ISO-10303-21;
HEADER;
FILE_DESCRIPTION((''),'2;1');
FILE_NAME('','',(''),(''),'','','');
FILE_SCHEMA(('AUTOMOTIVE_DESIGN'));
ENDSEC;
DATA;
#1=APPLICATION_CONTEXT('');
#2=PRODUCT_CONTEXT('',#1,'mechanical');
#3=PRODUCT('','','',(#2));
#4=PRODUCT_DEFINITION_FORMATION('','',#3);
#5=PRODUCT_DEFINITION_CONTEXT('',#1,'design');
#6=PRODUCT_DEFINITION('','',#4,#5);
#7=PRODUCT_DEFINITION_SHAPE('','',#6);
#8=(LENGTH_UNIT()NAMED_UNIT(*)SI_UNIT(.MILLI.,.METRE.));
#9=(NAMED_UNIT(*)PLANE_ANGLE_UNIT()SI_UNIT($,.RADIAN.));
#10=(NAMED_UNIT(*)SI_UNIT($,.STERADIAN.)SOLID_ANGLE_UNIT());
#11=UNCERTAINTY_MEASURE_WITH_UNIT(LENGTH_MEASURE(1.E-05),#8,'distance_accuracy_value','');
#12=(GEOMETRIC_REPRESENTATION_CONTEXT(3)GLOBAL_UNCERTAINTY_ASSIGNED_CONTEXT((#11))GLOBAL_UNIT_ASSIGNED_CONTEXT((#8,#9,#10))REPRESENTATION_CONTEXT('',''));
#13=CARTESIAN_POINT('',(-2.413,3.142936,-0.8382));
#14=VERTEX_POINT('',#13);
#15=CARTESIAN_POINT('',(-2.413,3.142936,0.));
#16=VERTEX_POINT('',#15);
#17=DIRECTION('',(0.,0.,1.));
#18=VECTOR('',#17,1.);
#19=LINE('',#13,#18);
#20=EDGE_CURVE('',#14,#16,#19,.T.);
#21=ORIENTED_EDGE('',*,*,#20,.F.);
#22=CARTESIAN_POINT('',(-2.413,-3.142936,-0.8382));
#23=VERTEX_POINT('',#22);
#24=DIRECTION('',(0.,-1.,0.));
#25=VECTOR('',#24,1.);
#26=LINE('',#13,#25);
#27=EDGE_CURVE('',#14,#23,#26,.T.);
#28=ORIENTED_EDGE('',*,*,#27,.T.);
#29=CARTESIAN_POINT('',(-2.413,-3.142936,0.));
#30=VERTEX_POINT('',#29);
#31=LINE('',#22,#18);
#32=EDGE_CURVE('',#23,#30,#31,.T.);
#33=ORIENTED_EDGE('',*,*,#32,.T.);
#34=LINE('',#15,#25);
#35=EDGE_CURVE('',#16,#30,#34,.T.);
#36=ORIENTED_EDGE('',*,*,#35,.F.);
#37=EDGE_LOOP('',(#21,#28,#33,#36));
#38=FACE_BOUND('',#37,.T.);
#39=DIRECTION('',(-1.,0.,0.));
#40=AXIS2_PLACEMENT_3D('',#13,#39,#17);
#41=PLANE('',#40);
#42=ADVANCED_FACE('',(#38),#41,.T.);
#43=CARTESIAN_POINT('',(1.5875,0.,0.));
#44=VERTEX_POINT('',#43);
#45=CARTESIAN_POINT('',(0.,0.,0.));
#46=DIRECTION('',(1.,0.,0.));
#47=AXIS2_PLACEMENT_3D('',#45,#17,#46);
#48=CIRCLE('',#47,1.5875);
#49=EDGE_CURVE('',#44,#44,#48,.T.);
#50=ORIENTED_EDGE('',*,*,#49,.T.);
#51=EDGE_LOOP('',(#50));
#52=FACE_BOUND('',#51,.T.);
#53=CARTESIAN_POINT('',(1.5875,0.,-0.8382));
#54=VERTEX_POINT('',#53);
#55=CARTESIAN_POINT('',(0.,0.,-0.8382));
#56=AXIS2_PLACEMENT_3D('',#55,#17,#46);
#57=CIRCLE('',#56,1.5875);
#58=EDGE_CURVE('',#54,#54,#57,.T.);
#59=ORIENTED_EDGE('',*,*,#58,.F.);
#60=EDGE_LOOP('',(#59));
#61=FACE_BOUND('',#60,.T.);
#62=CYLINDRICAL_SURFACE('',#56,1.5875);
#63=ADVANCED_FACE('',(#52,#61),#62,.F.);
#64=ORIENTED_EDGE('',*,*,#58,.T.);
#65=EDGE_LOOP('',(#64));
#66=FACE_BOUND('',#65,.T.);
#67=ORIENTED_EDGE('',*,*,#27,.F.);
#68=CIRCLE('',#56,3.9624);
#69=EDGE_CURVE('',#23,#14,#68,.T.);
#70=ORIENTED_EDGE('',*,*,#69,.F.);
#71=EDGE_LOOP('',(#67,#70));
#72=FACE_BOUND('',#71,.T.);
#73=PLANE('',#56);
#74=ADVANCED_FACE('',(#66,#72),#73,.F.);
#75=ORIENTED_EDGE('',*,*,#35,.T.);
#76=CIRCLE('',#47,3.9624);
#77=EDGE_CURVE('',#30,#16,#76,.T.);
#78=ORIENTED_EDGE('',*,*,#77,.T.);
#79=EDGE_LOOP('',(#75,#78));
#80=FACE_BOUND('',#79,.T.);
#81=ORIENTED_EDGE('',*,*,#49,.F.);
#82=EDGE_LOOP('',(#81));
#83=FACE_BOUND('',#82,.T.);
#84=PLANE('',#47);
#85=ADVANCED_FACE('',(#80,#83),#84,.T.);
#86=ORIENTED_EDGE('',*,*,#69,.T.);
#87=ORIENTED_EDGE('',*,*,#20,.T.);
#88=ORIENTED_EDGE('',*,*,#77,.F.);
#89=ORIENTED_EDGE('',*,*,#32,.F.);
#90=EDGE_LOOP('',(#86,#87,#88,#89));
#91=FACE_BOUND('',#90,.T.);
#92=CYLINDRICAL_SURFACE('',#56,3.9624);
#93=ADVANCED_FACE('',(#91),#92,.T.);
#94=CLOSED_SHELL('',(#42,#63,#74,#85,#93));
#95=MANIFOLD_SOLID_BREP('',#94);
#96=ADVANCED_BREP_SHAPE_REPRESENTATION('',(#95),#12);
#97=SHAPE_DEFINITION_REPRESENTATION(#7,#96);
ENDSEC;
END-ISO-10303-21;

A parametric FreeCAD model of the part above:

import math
import FreeCAD as App
import Part
import Sketcher
Q = App.Units.Quantity

doc = App.newDocument("Part")
body = doc.addObject("PartDesign::Body", "Body")

# Sketch on XY plane
sketch1 = body.newObject("Sketcher::SketchObject", "Sketch")
sketch1.AttachmentSupport = (doc.getObject("XY_Plane"), [""])
sketch1.MapMode = "FlatFace"
sketch1.addGeometry([
    Part.LineSegment(App.Vector(-2.4, 3.1, 0), App.Vector(-2.4, -3.1, 0)),
    Part.ArcOfCircle(Part.Circle(App.Vector(0, 0, 0), App.Vector(0, 0, 1), 4), math.radians(-128), math.radians(128)),
    Part.Circle(App.Vector(0, 0, 0), App.Vector(0, 0, 1), 1.6),
], False)
sketch1.addConstraint([
    Sketcher.Constraint("Coincident", 0, 1, 1, 2),
    Sketcher.Constraint("Coincident", 1, 1, 0, 2),
    Sketcher.Constraint("Vertical", 0),
    Sketcher.Constraint("Coincident", 1, 3, -1, 1),
    Sketcher.Constraint("Coincident", 2, 3, -1, 1),
    Sketcher.Constraint("Diameter", 2, Q("0.125 in")),
    Sketcher.Constraint("Radius", 1, Q("0.156 in")),
    Sketcher.Constraint("DistanceX", 0, 1, -1, 1, Q("0.095 in")),
])
pad1 = body.newObject("PartDesign::Pad", "Pad")
pad1.Profile = sketch1
pad1.Length = Q("0.033 in")
pad1.Reversed = True

doc.recompute()
